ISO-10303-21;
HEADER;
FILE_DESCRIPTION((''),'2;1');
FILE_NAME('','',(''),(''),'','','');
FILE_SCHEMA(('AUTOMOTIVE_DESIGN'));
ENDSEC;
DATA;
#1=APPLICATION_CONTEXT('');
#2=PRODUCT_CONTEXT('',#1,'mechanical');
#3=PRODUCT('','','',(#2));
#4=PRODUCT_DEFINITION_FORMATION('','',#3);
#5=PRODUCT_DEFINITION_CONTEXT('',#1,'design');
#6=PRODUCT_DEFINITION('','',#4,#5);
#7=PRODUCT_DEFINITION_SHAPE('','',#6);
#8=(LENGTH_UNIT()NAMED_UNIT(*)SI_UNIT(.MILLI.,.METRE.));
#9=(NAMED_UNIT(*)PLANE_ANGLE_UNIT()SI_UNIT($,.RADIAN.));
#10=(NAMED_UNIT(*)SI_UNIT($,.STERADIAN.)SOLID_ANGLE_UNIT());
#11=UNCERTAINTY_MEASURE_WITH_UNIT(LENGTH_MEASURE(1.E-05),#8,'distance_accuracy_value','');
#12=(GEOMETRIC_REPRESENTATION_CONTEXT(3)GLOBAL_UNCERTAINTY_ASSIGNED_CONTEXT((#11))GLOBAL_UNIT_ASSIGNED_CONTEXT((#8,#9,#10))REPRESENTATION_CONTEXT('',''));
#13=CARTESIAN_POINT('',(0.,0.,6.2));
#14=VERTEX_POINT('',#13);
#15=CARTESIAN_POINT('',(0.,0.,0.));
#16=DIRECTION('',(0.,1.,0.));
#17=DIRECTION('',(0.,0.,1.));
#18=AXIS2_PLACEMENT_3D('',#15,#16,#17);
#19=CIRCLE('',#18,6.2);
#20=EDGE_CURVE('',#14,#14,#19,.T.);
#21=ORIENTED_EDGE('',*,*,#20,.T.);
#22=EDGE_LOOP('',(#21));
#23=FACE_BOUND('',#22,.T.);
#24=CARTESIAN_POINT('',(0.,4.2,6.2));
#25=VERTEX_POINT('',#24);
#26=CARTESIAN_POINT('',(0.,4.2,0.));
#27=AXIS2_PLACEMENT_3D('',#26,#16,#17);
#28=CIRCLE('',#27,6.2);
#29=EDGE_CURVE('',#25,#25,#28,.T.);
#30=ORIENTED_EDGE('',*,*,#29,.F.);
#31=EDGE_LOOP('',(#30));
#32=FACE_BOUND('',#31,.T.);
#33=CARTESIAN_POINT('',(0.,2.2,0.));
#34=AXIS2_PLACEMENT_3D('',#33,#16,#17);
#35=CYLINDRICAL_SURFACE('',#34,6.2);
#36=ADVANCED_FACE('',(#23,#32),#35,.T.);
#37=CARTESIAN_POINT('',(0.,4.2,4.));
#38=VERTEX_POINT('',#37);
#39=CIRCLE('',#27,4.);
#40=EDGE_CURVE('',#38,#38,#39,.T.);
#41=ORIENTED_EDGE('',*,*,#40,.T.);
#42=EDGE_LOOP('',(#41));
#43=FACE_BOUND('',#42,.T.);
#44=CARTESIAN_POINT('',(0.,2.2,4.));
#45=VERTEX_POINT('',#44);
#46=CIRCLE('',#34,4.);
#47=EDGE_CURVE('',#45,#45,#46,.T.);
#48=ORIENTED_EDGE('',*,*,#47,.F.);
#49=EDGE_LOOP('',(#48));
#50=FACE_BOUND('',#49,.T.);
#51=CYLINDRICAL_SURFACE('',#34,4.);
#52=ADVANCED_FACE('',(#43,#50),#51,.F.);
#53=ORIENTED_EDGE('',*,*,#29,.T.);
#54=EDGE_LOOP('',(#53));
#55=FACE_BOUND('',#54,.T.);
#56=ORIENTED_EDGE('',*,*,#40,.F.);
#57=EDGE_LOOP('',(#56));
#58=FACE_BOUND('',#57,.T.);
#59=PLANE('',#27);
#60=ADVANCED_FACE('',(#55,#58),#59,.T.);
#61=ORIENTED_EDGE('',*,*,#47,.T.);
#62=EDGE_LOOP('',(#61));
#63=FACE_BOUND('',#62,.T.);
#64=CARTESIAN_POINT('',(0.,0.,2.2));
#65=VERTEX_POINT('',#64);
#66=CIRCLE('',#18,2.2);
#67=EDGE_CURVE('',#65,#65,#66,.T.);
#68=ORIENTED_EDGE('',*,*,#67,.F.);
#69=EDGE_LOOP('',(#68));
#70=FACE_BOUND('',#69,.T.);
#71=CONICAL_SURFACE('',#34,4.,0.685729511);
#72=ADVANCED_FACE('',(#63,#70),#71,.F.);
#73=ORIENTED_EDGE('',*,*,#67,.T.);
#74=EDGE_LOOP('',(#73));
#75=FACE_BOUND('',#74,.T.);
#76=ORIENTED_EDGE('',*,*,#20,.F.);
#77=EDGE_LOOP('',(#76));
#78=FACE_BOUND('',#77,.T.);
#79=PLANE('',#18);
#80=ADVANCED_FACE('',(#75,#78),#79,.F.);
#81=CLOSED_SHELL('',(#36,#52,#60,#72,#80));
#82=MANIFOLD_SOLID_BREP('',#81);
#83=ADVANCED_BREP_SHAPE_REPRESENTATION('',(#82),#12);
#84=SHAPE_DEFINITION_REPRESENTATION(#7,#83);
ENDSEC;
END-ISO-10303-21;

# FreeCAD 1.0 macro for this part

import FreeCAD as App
import Part
import Sketcher

V = App.Vector


def add_polygon(sketch, points):
    """Adds a closed chain of lines whose ends are joined by coincident constraints."""
    first, n = sketch.GeometryCount, len(points)
    for a, b in zip(points, points[1:] + points[:1]):
        sketch.addGeometry(Part.LineSegment(App.Vector(*a, 0), App.Vector(*b, 0)), False)
    for i in range(n):
        sketch.addConstraint(Sketcher.Constraint("Coincident", first + i, 2, first + (i + 1) % n, 1))

doc = App.newDocument("Part")
body = doc.addObject("PartDesign::Body", "Body")

# Sketch on YZ plane
sketch1 = body.newObject("Sketcher::SketchObject", "Sketch")
sketch1.AttachmentSupport = (doc.getObject("YZ_Plane"), [""])
sketch1.MapMode = "FlatFace"
add_polygon(sketch1, [(4.2, -4), (2.2, -4), (0, -2.2), (0, -6.2), (4.2, -6.2)])  # lines 0-4
sketch1.addConstraint([
    Sketcher.Constraint("Horizontal", 0),
    Sketcher.Constraint("Vertical", 2),
    Sketcher.Constraint("Horizontal", 3),
    Sketcher.Constraint("Vertical", 4),
    Sketcher.Constraint("PointOnObject", 1, 2, -2),
    Sketcher.Constraint("DistanceX", 0, 2, 0, 1, 2.0),
    Sketcher.Constraint("DistanceY", 2, 2, 2, 1, 4.0),
    Sketcher.Constraint("DistanceX", 3, 1, 3, 2, 4.2),
    Sketcher.Constraint("DistanceY", 4, 1, 4, 2, 2.2),
    Sketcher.Constraint("DistanceY", 0, 2, -1, 1, 4.0),
])
revolution = body.newObject("PartDesign::Revolution", "Revolution")
revolution.Profile = sketch1
revolution.ReferenceAxis = (sketch1, ["H_Axis"])
revolution.Angle = 360

doc.recompute()
